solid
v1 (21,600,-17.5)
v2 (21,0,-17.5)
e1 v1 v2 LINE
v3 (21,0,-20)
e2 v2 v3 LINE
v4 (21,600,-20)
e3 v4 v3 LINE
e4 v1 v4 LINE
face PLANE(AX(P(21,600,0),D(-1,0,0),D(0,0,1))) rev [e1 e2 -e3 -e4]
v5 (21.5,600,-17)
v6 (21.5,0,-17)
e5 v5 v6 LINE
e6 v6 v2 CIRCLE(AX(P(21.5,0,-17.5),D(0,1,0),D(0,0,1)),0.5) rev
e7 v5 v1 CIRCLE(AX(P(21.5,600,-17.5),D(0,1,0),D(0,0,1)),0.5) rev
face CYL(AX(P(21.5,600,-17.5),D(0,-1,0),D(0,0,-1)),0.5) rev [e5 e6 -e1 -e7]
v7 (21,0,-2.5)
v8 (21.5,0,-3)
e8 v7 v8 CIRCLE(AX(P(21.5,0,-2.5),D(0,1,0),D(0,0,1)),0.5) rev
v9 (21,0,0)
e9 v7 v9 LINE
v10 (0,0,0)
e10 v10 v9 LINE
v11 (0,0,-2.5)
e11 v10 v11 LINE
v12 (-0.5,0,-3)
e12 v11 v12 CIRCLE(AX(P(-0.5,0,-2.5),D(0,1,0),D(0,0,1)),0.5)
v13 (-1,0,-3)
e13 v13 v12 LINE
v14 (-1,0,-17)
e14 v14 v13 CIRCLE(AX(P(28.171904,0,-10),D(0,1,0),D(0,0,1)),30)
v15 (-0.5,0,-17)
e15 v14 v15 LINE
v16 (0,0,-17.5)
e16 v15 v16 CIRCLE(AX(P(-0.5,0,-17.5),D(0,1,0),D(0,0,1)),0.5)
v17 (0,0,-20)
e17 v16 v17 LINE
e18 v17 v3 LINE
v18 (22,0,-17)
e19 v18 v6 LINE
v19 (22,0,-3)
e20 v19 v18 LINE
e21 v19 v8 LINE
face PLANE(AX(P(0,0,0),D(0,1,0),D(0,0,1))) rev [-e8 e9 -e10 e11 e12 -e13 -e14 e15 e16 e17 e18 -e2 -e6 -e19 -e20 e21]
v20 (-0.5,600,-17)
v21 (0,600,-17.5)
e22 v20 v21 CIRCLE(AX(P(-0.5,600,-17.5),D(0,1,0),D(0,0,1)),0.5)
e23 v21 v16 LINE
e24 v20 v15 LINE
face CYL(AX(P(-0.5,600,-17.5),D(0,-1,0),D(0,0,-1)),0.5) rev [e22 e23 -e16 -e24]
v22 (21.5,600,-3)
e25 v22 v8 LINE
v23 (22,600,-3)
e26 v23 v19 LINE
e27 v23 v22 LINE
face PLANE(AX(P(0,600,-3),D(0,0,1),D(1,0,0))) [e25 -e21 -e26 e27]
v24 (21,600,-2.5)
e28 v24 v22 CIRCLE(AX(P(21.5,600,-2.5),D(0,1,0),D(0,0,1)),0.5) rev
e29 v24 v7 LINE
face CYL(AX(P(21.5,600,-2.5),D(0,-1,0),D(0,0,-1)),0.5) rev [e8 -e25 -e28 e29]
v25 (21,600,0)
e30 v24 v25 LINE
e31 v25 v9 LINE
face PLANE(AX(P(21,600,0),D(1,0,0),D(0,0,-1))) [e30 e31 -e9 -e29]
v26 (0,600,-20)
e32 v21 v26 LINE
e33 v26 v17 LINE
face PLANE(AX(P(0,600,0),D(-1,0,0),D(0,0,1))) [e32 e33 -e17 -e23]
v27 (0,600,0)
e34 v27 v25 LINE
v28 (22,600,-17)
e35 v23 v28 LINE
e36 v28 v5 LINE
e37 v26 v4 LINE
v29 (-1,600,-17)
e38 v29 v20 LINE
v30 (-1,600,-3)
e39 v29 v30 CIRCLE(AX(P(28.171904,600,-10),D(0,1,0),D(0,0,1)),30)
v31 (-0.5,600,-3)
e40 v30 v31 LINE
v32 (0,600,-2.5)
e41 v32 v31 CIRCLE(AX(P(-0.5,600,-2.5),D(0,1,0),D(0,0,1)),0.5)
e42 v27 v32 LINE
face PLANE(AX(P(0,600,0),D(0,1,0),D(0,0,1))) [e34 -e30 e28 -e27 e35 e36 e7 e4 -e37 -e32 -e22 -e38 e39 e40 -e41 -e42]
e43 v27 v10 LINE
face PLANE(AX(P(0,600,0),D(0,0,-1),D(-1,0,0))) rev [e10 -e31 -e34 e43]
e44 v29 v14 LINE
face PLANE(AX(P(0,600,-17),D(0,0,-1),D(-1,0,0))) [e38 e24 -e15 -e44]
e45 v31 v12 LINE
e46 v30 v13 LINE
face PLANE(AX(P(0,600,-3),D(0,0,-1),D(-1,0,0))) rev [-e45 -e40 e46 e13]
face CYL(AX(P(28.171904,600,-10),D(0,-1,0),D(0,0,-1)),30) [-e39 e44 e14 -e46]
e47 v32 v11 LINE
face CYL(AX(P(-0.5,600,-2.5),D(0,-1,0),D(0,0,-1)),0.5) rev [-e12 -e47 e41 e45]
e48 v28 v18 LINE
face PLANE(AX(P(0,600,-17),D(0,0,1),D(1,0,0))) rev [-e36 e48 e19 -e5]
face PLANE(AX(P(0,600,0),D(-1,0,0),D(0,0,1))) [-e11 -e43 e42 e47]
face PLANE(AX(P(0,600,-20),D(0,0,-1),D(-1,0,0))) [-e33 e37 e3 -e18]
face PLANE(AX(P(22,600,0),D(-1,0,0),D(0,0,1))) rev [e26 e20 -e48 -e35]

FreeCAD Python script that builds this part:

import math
import FreeCAD as App
import Part
import Sketcher

V = App.Vector
Q = App.Units.Quantity

doc = App.newDocument("Part")
body = doc.addObject("PartDesign::Body", "Body")

# Sketch on XZ plane
sketch1 = body.newObject("Sketcher::SketchObject", "Sketch")
sketch1.AttachmentSupport = (doc.getObject("XZ_Plane"), [""])
sketch1.MapMode = "FlatFace"
sketch1.addGeometry(Part.LineSegment(V(0, -2.5, 0), V(0, 0, 0)), False)
sketch1.addGeometry(Part.LineSegment(V(0, 0, 0), V(21, 0, 0)), False)
sketch1.addGeometry(Part.LineSegment(V(21, 0, 0), V(21, -2.5, 0)), False)
sketch1.addGeometry(Part.ArcOfCircle(Part.Circle(V(21.5, -2.5, 0), V(0, 0, 1), 0.5), math.radians(180), math.radians(270)), False)
sketch1.addGeometry(Part.LineSegment(V(21.5, -3, 0), V(22, -3, 0)), False)
sketch1.addGeometry(Part.LineSegment(V(22, -3, 0), V(22, -17, 0)), False)
sketch1.addGeometry(Part.LineSegment(V(22, -17, 0), V(21.5, -17, 0)), False)
sketch1.addGeometry(Part.ArcOfCircle(Part.Circle(V(21.5, -17.5, 0), V(0, 0, 1), 0.5), math.radians(90), math.radians(180)), False)
sketch1.addGeometry(Part.LineSegment(V(21, -17.5, 0), V(21, -20, 0)), False)
sketch1.addGeometry(Part.LineSegment(V(21, -20, 0), V(0, -20, 0)), False)
sketch1.addGeometry(Part.LineSegment(V(0, -20, 0), V(0, -17.5, 0)), False)
sketch1.addGeometry(Part.ArcOfCircle(Part.Circle(V(-0.5, -17.5, 0), V(0, 0, 1), 0.5), math.radians(0), math.radians(90)), False)
sketch1.addGeometry(Part.LineSegment(V(-0.5, -17, 0), V(-1, -17, 0)), False)
sketch1.addGeometry(Part.ArcOfCircle(Part.Circle(V(28.17, -10, 0), V(0, 0, 1), 30), math.radians(167), math.radians(193)), False)
sketch1.addGeometry(Part.LineSegment(V(-1, -3, 0), V(-0.5, -3, 0)), False)
sketch1.addGeometry(Part.ArcOfCircle(Part.Circle(V(-0.5, -2.5, 0), V(0, 0, 1), 0.5), math.radians(-90), math.radians(0)), False)
sketch1.addConstraint(Sketcher.Constraint("Coincident", 0, 2, 1, 1))
sketch1.addConstraint(Sketcher.Constraint("Coincident", 1, 2, 2, 1))
sketch1.addConstraint(Sketcher.Constraint("Tangent", 2, 2, 3, 1))
sketch1.addConstraint(Sketcher.Constraint("Tangent", 3, 2, 4, 1))
sketch1.addConstraint(Sketcher.Constraint("Coincident", 4, 2, 5, 1))
sketch1.addConstraint(Sketcher.Constraint("Coincident", 5, 2, 6, 1))
sketch1.addConstraint(Sketcher.Constraint("Tangent", 6, 2, 7, 1))
sketch1.addConstraint(Sketcher.Constraint("Tangent", 7, 2, 8, 1))
sketch1.addConstraint(Sketcher.Constraint("Coincident", 8, 2, 9, 1))
sketch1.addConstraint(Sketcher.Constraint("Coincident", 9, 2, 10, 1))
sketch1.addConstraint(Sketcher.Constraint("Tangent", 10, 2, 11, 1))
sketch1.addConstraint(Sketcher.Constraint("Tangent", 11, 2, 12, 1))
sketch1.addConstraint(Sketcher.Constraint("Coincident", 12, 2, 13, 2))
sketch1.addConstraint(Sketcher.Constraint("Coincident", 13, 1, 14, 1))
sketch1.addConstraint(Sketcher.Constraint("Tangent", 14, 2, 15, 1))
sketch1.addConstraint(Sketcher.Constraint("Tangent", 15, 2, 0, 1))
sketch1.addConstraint(Sketcher.Constraint("Vertical", 0))
sketch1.addConstraint(Sketcher.Constraint("Horizontal", 1))
sketch1.addConstraint(Sketcher.Constraint("Vertical", 2))
sketch1.addConstraint(Sketcher.Constraint("Horizontal", 4))
sketch1.addConstraint(Sketcher.Constraint("Vertical", 5))
sketch1.addConstraint(Sketcher.Constraint("Horizontal", 6))
sketch1.addConstraint(Sketcher.Constraint("Vertical", 8))
sketch1.addConstraint(Sketcher.Constraint("Horizontal", 9))
sketch1.addConstraint(Sketcher.Constraint("Vertical", 10))
sketch1.addConstraint(Sketcher.Constraint("Horizontal", 12))
sketch1.addConstraint(Sketcher.Constraint("Horizontal", 14))
sketch1.addConstraint(Sketcher.Constraint("Coincident", 0, 2, -1, 1))
sketch1.addConstraint(Sketcher.Constraint("Equal", 3, 7))
sketch1.addConstraint(Sketcher.Constraint("Equal", 7, 11))
sketch1.addConstraint(Sketcher.Constraint("Equal", 11, 15))
sketch1.addConstraint(Sketcher.Constraint("PointOnObject", 9, 2, -2))
sketch1.addConstraint(Sketcher.Constraint("Horizontal", 7, 3, 11, 3))
sketch1.addConstraint(Sketcher.Constraint("Horizontal", 3, 3, 15, 3))
sketch1.addConstraint(Sketcher.Constraint("Vertical", 3, 3, 7, 3))
sketch1.addConstraint(Sketcher.Constraint("Vertical", 12, 2, 13, 1))
sketch1.addConstraint(Sketcher.Constraint("Equal", 6, 12))
sketch1.addConstraint(Sketcher.Constraint("Equal", 2, 8))
sketch1.addConstraint(Sketcher.Constraint("Radius", 13, Q("30 mm")))
sketch1.addConstraint(Sketcher.Constraint("Radius", 3, Q("0.5 mm")))
sketch1.addConstraint(Sketcher.Constraint("DistanceX", 1, 1, 1, 2, Q("21 mm")))
sketch1.addConstraint(Sketcher.Constraint("DistanceY", 5, 2, 5, 1, Q("14 mm")))
sketch1.addConstraint(Sketcher.Constraint("DistanceX", 4, 1, 4, 2, Q("0.5 mm")))
sketch1.addConstraint(Sketcher.Constraint("DistanceY", 0, 1, 0, 2, Q("2.5 mm")))
pad1 = body.newObject("PartDesign::Pad", "Pad")
pad1.Profile = sketch1
pad1.Length = 600
pad1.Reversed = True

doc.recompute()
